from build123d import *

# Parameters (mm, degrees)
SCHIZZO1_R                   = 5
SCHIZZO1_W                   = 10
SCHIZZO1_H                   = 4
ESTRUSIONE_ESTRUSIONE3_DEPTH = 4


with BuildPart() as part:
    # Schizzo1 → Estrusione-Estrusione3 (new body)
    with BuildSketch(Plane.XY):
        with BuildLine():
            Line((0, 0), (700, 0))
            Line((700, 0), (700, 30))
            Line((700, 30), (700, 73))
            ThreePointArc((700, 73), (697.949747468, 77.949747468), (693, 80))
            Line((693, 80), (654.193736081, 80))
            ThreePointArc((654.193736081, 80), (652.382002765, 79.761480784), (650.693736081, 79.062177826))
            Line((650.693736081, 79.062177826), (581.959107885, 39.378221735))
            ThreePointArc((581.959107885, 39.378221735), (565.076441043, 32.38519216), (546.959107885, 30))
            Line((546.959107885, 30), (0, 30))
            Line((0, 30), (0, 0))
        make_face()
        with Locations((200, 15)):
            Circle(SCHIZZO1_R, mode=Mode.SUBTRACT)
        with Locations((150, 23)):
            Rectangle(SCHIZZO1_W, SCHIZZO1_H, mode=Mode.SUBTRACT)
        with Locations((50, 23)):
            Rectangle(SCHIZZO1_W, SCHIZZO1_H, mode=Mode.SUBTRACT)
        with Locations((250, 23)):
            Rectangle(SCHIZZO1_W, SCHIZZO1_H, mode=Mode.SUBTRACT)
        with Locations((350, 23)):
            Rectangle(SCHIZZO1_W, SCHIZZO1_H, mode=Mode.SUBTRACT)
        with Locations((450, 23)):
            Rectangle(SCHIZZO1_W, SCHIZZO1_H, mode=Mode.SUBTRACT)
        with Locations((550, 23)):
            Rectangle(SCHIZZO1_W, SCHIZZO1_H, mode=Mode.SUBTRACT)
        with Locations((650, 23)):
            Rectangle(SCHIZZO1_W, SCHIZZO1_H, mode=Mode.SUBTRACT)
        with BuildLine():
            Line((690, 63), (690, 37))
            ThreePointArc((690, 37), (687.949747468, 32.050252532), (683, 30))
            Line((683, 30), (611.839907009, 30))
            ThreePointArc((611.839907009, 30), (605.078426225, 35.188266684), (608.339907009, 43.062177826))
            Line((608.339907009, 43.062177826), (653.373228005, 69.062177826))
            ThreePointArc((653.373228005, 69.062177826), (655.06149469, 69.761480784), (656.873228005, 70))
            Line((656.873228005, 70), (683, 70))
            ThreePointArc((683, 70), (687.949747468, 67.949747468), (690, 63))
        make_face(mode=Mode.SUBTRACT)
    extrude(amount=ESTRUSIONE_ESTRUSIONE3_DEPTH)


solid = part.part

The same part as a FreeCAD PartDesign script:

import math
import FreeCAD as App
import Part
import Sketcher
from FreeCAD import Vector
Q = App.Units.Quantity


def add_polygon(sketch, points):
    """Adds a closed chain of lines whose ends are joined by coincident constraints."""
    first, n = sketch.GeometryCount, len(points)
    for a, b in zip(points, points[1:] + points[:1]):
        sketch.addGeometry(Part.LineSegment(App.Vector(*a, 0), App.Vector(*b, 0)), False)
    for i in range(n):
        sketch.addConstraint(Sketcher.Constraint("Coincident", first + i, 2, first + (i + 1) % n, 1))

doc = App.newDocument("Part")
params = doc.addObject("Spreadsheet::Sheet", "Params")
for row, (alias, value) in enumerate([
    ("sketch1_diameter", "10 mm"),
    ("sketch1_radius", "7 mm"),
    ("sketch1_radius2", "70 mm"),
    ("sketch1_width", "700 mm"),
    ("sketch1_width2", "10 mm"),
    ("pad1_length", "4 mm"),
], start=1):
    params.set(f"A{row}", alias)
    params.set(f"B{row}", "=" + value)
    params.setAlias(f"B{row}", alias)

body = doc.addObject("PartDesign::Body", "Body")

# Sketch on XY plane
sketch1 = body.newObject("Sketcher::SketchObject", "Sketch")
sketch1.AttachmentSupport = (doc.getObject("XY_Plane"), [""])
sketch1.MapMode = "FlatFace"
sketch1.addGeometry(Part.LineSegment(Vector(0, 0, 0), Vector(700, 0, 0)), False)  # 0
sketch1.addGeometry(Part.LineSegment(Vector(700, 0, 0), Vector(700, 73, 0)), False)  # 1
sketch1.addGeometry(Part.ArcOfCircle(Part.Circle(Vector(693, 73, 0), Vector(0, 0, 1), 7), math.radians(0), math.radians(90)), False)  # 2
sketch1.addGeometry(Part.LineSegment(Vector(693, 80, 0), Vector(654.2, 80, 0)), False)  # 3
sketch1.addGeometry(Part.ArcOfCircle(Part.Circle(Vector(654.2, 73, 0), Vector(0, 0, 1), 7), math.radians(90), math.radians(120)), False)  # 4
sketch1.addGeometry(Part.LineSegment(Vector(650.7, 79.1, 0), Vector(582, 39.4, 0)), False)  # 5
sketch1.addGeometry(Part.ArcOfCircle(Part.Circle(Vector(547, 100, 0), Vector(0, 0, 1), 70), math.radians(-90), math.radians(-60)), False)  # 6
sketch1.addGeometry(Part.LineSegment(Vector(547, 30, 0), Vector(0, 30, 0)), False)  # 7
sketch1.addGeometry(Part.LineSegment(Vector(0, 30, 0), Vector(0, 0, 0)), False)  # 8
sketch1.addGeometry(Part.Circle(Vector(200, 15, 0), Vector(0, 0, 1), 5), False)  # 9
add_polygon(sketch1, [(55, 21), (45, 21), (45, 25), (55, 25)])  # lines 10-13
add_polygon(sketch1, [(155, 21), (145, 21), (145, 25), (155, 25)])  # lines 14-17
add_polygon(sketch1, [(255, 21), (245, 21), (245, 25), (255, 25)])  # lines 18-21
add_polygon(sketch1, [(355, 21), (345, 21), (345, 25), (355, 25)])  # lines 22-25
add_polygon(sketch1, [(455, 21), (445, 21), (445, 25), (455, 25)])  # lines 26-29
add_polygon(sketch1, [(555, 21), (545, 21), (545, 25), (555, 25)])  # lines 30-33
add_polygon(sketch1, [(655, 21), (645, 21), (645, 25), (655, 25)])  # lines 34-37
sketch1.addGeometry(Part.ArcOfCircle(Part.Circle(Vector(683, 63, 0), Vector(0, 0, 1), 7), math.radians(0), math.radians(90)), False)  # 38
sketch1.addGeometry(Part.LineSegment(Vector(690, 63, 0), Vector(690, 37, 0)), False)  # 39
sketch1.addGeometry(Part.ArcOfCircle(Part.Circle(Vector(683, 37, 0), Vector(0, 0, 1), 7), math.radians(-90), math.radians(0)), False)  # 40
sketch1.addGeometry(Part.LineSegment(Vector(683, 30, 0), Vector(611.8, 30, 0)), False)  # 41
sketch1.addGeometry(Part.ArcOfCircle(Part.Circle(Vector(611.8, 37, 0), Vector(0, 0, 1), 7), math.radians(120), math.radians(270)), False)  # 42
sketch1.addGeometry(Part.LineSegment(Vector(608.3, 43.1, 0), Vector(653.4, 69.1, 0)), False)  # 43
sketch1.addGeometry(Part.ArcOfCircle(Part.Circle(Vector(656.9, 63, 0), Vector(0, 0, 1), 7), math.radians(90), math.radians(120)), False)  # 44
sketch1.addGeometry(Part.LineSegment(Vector(656.9, 70, 0), Vector(683, 70, 0)), False)  # 45
sketch1.addConstraint([
    Sketcher.Constraint("Coincident", 0, 2, 1, 1),
    Sketcher.Constraint("Tangent", 1, 2, 2, 1),
    Sketcher.Constraint("Tangent", 2, 2, 3, 1),
    Sketcher.Constraint("Tangent", 3, 2, 4, 1),
    Sketcher.Constraint("Tangent", 4, 2, 5, 1),
    Sketcher.Constraint("Tangent", 5, 2, 6, 2),
    Sketcher.Constraint("Tangent", 6, 1, 7, 1),
    Sketcher.Constraint("Coincident", 7, 2, 8, 1),
    Sketcher.Constraint("Coincident", 8, 2, 0, 1),
    Sketcher.Constraint("Tangent", 38, 1, 39, 1),
    Sketcher.Constraint("Tangent", 39, 2, 40, 2),
    Sketcher.Constraint("Tangent", 40, 1, 41, 1),
    Sketcher.Constraint("Tangent", 41, 2, 42, 2),
    Sketcher.Constraint("Tangent", 42, 1, 43, 1),
    Sketcher.Constraint("Tangent", 43, 2, 44, 2),
    Sketcher.Constraint("Tangent", 44, 1, 45, 1),
    Sketcher.Constraint("Tangent", 45, 2, 38, 2),
    Sketcher.Constraint("Horizontal", 0),
    Sketcher.Constraint("Vertical", 1),
    Sketcher.Constraint("Horizontal", 3),
    Sketcher.Constraint("Horizontal", 7),
    Sketcher.Constraint("Vertical", 8),
    Sketcher.Constraint("Horizontal", 10),
    Sketcher.Constraint("Vertical", 11),
    Sketcher.Constraint("Horizontal", 12),
    Sketcher.Constraint("Vertical", 13),
    Sketcher.Constraint("Horizontal", 14),
    Sketcher.Constraint("Vertical", 15),
    Sketcher.Constraint("Horizontal", 16),
    Sketcher.Constraint("Vertical", 17),
    Sketcher.Constraint("Horizontal", 18),
    Sketcher.Constraint("Vertical", 19),
    Sketcher.Constraint("Horizontal", 20),
    Sketcher.Constraint("Vertical", 21),
    Sketcher.Constraint("Horizontal", 22),
    Sketcher.Constraint("Vertical", 23),
    Sketcher.Constraint("Horizontal", 24),
    Sketcher.Constraint("Vertical", 25),
    Sketcher.Constraint("Horizontal", 26),
    Sketcher.Constraint("Vertical", 27),
    Sketcher.Constraint("Horizontal", 28),
    Sketcher.Constraint("Vertical", 29),
    Sketcher.Constraint("Horizontal", 30),
    Sketcher.Constraint("Vertical", 31),
    Sketcher.Constraint("Horizontal", 32),
    Sketcher.Constraint("Vertical", 33),
    Sketcher.Constraint("Horizontal", 34),
    Sketcher.Constraint("Vertical", 35),
    Sketcher.Constraint("Horizontal", 36),
    Sketcher.Constraint("Vertical", 37),
    Sketcher.Constraint("Vertical", 39),
    Sketcher.Constraint("Horizontal", 41),
    Sketcher.Constraint("Horizontal", 45),
    Sketcher.Constraint("Coincident", 8, 2, -1, 1),
    Sketcher.Constraint("Equal", 2, 4),
    Sketcher.Constraint("Equal", 4, 38),
    Sketcher.Constraint("Equal", 38, 40),
    Sketcher.Constraint("Equal", 40, 42),
    Sketcher.Constraint("Equal", 42, 44),
    Sketcher.Constraint("Parallel", 5, 43),
    Sketcher.Constraint("Horizontal", 13, 2, 14, 2),
    Sketcher.Constraint("Horizontal", 12, 2, 15, 2),
    Sketcher.Constraint("Horizontal", 17, 2, 18, 2),
    Sketcher.Constraint("Horizontal", 16, 2, 19, 2),
    Sketcher.Constraint("Horizontal", 21, 2, 22, 2),
    Sketcher.Constraint("Horizontal", 20, 2, 23, 2),
    Sketcher.Constraint("Horizontal", 25, 2, 26, 2),
    Sketcher.Constraint("Horizontal", 24, 2, 27, 2),
    Sketcher.Constraint("Horizontal", 29, 2, 30, 2),
    Sketcher.Constraint("Horizontal", 28, 2, 31, 2),
    Sketcher.Constraint("Horizontal", 33, 2, 34, 2),
    Sketcher.Constraint("Horizontal", 32, 2, 35, 2),
    Sketcher.Constraint("Horizontal", 7, 2, 40, 1),
    Sketcher.Constraint("Equal", 12, 14),
    Sketcher.Constraint("Equal", 16, 18),
    Sketcher.Constraint("Equal", 20, 22),
    Sketcher.Constraint("Equal", 24, 26),
    Sketcher.Constraint("Equal", 28, 30),
    Sketcher.Constraint("Equal", 32, 34),
    Sketcher.Constraint("Diameter", 9, Q("10 mm")),
    Sketcher.Constraint("Radius", 2, Q("7 mm")),
    Sketcher.Constraint("Radius", 6, Q("70 mm")),
    Sketcher.Constraint("DistanceX", 0, 1, 0, 2, Q("700 mm")),
    Sketcher.Constraint("DistanceX", 10, 2, 10, 1, Q("10 mm")),
    Sketcher.Constraint("DistanceY", 1, 1, 1, 2, Q("73 mm")),
    Sketcher.Constraint("DistanceY", 8, 2, 8, 1, Q("30 mm")),
    Sketcher.Constraint("DistanceY", 11, 1, 11, 2, Q("4 mm")),
    Sketcher.Constraint("DistanceY", 39, 2, 39, 1, Q("26 mm")),
    Sketcher.Constraint("Angle", 5, Q("-150 deg")),
    Sketcher.Constraint("DistanceX", -1, 1, 9, 3, Q("200 mm")),
    Sketcher.Constraint("DistanceY", -1, 1, 9, 3, Q("15 mm")),
    Sketcher.Constraint("DistanceX", -1, 1, 38, 3, Q("683 mm")),
    Sketcher.Constraint("DistanceX", -1, 1, 10, 2, Q("45 mm")),
    Sketcher.Constraint("DistanceY", -1, 1, 10, 2, Q("21 mm")),
    Sketcher.Constraint("DistanceX", -1, 1, 14, 2, Q("145 mm")),
    Sketcher.Constraint("DistanceX", -1, 1, 18, 2, Q("245 mm")),
    Sketcher.Constraint("DistanceX", -1, 1, 22, 2, Q("345 mm")),
    Sketcher.Constraint("DistanceX", -1, 1, 26, 2, Q("445 mm")),
    Sketcher.Constraint("DistanceX", -1, 1, 30, 2, Q("545 mm")),
    Sketcher.Constraint("DistanceX", -1, 1, 34, 2, Q("645 mm")),
    Sketcher.Constraint("DistanceX", 45, 1, 45, 2, Q("26.126772 mm")),
    Sketcher.Constraint("DistanceX", 6, 3, 42, 3, Q("64.880799 mm")),
])
sketch1.setExpression("Constraints[107]", "Params.sketch1_diameter")
sketch1.setExpression("Constraints[108]", "Params.sketch1_radius")
sketch1.setExpression("Constraints[109]", "Params.sketch1_radius2")
sketch1.setExpression("Constraints[110]", "Params.sketch1_width")
sketch1.setExpression("Constraints[111]", "Params.sketch1_width2")
pad1 = body.newObject("PartDesign::Pad", "Pad")
pad1.Profile = sketch1
pad1.setExpression("Length", "Params.pad1_length")

doc.recompute()
